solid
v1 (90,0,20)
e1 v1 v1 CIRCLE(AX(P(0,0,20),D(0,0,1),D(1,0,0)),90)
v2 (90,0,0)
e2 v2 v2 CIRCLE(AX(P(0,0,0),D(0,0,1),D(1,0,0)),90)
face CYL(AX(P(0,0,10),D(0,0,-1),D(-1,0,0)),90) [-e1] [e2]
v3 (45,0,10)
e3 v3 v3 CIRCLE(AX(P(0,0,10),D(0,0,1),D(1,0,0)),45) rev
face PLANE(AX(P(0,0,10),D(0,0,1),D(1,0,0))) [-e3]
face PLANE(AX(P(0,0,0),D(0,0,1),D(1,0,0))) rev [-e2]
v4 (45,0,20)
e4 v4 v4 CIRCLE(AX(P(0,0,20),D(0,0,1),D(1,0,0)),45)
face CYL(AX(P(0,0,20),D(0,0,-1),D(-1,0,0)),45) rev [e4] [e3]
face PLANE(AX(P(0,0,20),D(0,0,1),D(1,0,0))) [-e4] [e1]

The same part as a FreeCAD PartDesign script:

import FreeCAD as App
import Part
import Sketcher
from FreeCAD import Vector

doc = App.newDocument("Part")
body = doc.addObject("PartDesign::Body", "Body")

# Sketch on XY plane
sketch1 = body.newObject("Sketcher::SketchObject", "Sketch")
sketch1.AttachmentSupport = (doc.getObject("XY_Plane"), [""])
sketch1.MapMode = "FlatFace"
sketch1.addGeometry(Part.Circle(Vector(0, 0, 0), Vector(0, 0, 1), 90), False)
sketch1.addConstraint(Sketcher.Constraint("Coincident", 0, 3, -1, 1))
sketch1.addConstraint(Sketcher.Constraint("Diameter", 0, 180.0))
pad1 = body.newObject("PartDesign::Pad", "Pad")
pad1.Profile = sketch1
pad1.Length = 10

# Sketch on XY plane
sketch2 = body.newObject("Sketcher::SketchObject", "Sketch001")
sketch2.AttachmentSupport = (doc.getObject("XY_Plane"), [""])
sketch2.MapMode = "FlatFace"
sketch2.AttachmentOffset = App.Placement(Vector(0, 0, 10), App.Rotation())
sketch2.addGeometry(Part.Circle(Vector(0, 0, 0), Vector(0, 0, 1), 90), False)
sketch2.addGeometry(Part.Circle(Vector(0, 0, 0), Vector(0, 0, 1), 45), False)
sketch2.addConstraint(Sketcher.Constraint("Coincident", 0, 3, -1, 1))
sketch2.addConstraint(Sketcher.Constraint("Coincident", 1, 3, -1, 1))
sketch2.addConstraint(Sketcher.Constraint("Diameter", 0, 180.0))
sketch2.addConstraint(Sketcher.Constraint("Diameter", 1, 90.0))
pad2 = body.newObject("PartDesign::Pad", "Pad001")
pad2.Profile = sketch2
pad2.Length = 10

doc.recompute()
